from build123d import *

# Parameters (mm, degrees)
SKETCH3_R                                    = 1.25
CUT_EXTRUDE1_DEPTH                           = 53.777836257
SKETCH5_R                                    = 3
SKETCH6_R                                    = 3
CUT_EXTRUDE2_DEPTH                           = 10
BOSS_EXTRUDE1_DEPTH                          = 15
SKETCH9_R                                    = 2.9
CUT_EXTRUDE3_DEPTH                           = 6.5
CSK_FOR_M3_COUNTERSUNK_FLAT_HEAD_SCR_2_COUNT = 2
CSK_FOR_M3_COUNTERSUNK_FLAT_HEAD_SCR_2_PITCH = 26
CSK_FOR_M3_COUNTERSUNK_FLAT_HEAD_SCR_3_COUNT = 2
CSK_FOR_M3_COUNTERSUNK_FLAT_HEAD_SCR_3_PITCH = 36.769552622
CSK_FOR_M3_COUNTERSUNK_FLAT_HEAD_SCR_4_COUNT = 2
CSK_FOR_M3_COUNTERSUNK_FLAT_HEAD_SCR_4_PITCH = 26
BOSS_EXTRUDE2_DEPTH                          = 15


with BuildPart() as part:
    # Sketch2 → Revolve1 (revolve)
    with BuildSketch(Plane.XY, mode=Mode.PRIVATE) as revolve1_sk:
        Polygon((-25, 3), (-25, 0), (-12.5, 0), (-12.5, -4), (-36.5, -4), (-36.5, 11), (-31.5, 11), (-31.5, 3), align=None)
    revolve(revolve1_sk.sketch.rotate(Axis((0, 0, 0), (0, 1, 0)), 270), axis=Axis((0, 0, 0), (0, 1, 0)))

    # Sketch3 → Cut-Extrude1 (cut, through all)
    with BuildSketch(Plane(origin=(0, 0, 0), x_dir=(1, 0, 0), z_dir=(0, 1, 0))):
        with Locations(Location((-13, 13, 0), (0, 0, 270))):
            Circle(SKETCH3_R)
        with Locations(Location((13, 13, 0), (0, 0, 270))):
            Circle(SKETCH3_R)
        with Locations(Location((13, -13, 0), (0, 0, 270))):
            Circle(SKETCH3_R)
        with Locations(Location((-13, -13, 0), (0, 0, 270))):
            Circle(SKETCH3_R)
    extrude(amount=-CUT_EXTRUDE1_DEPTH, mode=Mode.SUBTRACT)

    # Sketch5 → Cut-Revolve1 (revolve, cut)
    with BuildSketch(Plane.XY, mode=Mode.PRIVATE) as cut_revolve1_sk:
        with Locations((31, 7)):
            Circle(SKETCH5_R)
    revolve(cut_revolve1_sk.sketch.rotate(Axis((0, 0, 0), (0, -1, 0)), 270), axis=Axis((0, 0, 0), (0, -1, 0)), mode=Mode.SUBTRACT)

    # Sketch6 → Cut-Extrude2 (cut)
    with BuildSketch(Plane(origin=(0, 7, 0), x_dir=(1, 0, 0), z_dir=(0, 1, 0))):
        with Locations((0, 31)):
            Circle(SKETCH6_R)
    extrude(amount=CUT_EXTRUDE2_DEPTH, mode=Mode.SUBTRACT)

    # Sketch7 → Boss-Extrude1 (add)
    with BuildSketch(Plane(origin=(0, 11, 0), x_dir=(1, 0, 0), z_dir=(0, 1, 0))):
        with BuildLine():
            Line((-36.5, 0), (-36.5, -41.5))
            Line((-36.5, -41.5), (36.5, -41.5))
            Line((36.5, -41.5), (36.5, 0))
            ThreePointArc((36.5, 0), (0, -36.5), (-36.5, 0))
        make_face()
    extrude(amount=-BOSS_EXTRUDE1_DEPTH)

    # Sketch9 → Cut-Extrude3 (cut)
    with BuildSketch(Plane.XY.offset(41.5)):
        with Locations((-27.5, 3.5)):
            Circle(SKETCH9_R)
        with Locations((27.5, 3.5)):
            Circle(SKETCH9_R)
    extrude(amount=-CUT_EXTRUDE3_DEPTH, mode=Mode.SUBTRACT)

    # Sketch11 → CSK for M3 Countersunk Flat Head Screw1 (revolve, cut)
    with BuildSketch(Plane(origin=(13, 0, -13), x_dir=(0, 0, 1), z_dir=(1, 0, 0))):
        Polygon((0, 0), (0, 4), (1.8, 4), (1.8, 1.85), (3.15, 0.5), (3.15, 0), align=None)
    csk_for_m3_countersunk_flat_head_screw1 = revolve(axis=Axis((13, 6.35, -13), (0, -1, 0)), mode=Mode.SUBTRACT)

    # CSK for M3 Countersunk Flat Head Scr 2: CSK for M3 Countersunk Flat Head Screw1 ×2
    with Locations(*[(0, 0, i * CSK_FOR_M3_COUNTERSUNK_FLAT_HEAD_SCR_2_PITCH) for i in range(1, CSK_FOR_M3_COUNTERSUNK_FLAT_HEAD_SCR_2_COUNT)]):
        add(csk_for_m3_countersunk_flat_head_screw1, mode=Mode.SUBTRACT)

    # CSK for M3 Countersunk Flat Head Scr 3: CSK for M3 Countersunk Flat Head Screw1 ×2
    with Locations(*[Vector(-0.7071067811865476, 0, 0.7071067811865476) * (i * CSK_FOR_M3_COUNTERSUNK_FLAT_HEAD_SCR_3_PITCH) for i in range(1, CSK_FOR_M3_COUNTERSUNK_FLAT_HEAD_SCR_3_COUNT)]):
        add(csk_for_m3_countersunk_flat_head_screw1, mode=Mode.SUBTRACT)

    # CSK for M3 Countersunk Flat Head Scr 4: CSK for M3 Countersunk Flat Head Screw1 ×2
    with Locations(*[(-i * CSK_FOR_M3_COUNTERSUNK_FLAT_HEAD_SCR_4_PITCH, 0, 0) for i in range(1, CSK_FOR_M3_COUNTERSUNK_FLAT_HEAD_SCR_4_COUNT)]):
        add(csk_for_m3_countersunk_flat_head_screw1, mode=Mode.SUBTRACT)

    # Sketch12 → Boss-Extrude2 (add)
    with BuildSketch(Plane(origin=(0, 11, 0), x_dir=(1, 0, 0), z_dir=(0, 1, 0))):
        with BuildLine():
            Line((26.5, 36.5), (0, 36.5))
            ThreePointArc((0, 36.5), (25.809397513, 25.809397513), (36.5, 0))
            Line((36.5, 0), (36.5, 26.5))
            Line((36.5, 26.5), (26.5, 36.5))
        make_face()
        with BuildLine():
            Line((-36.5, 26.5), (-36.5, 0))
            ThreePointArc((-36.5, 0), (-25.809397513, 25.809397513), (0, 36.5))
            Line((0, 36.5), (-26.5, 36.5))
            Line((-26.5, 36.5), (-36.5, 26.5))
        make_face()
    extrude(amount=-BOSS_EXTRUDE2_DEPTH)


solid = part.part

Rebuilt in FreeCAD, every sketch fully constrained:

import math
import FreeCAD as App
import Part
import Sketcher
Q = App.Units.Quantity


def add_polygon(sketch, points):
    """Adds a closed chain of lines whose ends are joined by coincident constraints."""
    first, n = sketch.GeometryCount, len(points)
    for a, b in zip(points, points[1:] + points[:1]):
        sketch.addGeometry(Part.LineSegment(App.Vector(*a, 0), App.Vector(*b, 0)), False)
    for i in range(n):
        sketch.addConstraint(Sketcher.Constraint("Coincident", first + i, 2, first + (i + 1) % n, 1))

doc = App.newDocument("Part")
body = doc.addObject("PartDesign::Body", "Body")

sketch1 = body.newObject("Sketcher::SketchObject", "Sketch")
sketch1.AttachmentSupport = (doc.getObject("XY_Plane"), [""])
sketch1.MapMode = "FlatFace"
add_polygon(sketch1, [(-25, 0), (-25, 3), (-31.5, 3), (-31.5, 11), (-36.5, 11), (-36.5, -4), (-12.5, -4), (-12.5, 0)])
sketch1.addConstraint([
    Sketcher.Constraint("Vertical", 0),
    Sketcher.Constraint("Horizontal", 1),
    Sketcher.Constraint("Vertical", 2),
    Sketcher.Constraint("Horizontal", 3),
    Sketcher.Constraint("Vertical", 4),
    Sketcher.Constraint("Horizontal", 5),
    Sketcher.Constraint("Vertical", 6),
    Sketcher.Constraint("Horizontal", 7),
    Sketcher.Constraint("PointOnObject", 6, 2, -1),
    Sketcher.Constraint("DistanceX", 3, 2, 3, 1, Q("5 mm")),
    Sketcher.Constraint("DistanceX", 5, 1, 5, 2, Q("24 mm")),
    Sketcher.Constraint("DistanceY", 0, 1, 0, 2, Q("3 mm")),
    Sketcher.Constraint("DistanceY", 2, 1, 2, 2, Q("8 mm")),
    Sketcher.Constraint("DistanceY", 4, 2, 4, 1, Q("15 mm")),
    Sketcher.Constraint("DistanceX", 1, 2, 1, 1, Q("6.5 mm")),
    Sketcher.Constraint("DistanceX", 0, 2, -1, 1, Q("25 mm")),
])
revolution = body.newObject("PartDesign::Revolution", "Revolution")
revolution.Profile = sketch1
revolution.ReferenceAxis = (sketch1, ["V_Axis"])
revolution.Angle = 360

sketch2 = body.newObject("Sketcher::SketchObject", "Sketch001")
sketch2.AttachmentSupport = (doc.getObject("XZ_Plane"), [""])
sketch2.MapMode = "FlatFace"
sketch2.addGeometry([
    Part.Circle(App.Vector(-13, -13, 0), App.Vector(0, 0, 1), 1.2),
    Part.Circle(App.Vector(13, -13, 0), App.Vector(0, 0, 1), 1.2),
    Part.Circle(App.Vector(13, 13, 0), App.Vector(0, 0, 1), 1.2),
    Part.Circle(App.Vector(-13, 13, 0), App.Vector(0, 0, 1), 1.2),
], False)
sketch2.addConstraint([
    Sketcher.Constraint("Equal", 0, 1),
    Sketcher.Constraint("Equal", 1, 2),
    Sketcher.Constraint("Equal", 2, 3),
    Sketcher.Constraint("Symmetric", 0, 3, 2, 3, -1, 1),
    Sketcher.Constraint("Symmetric", 1, 3, 3, 3, -1, 1),
    Sketcher.Constraint("Symmetric", 0, 3, 1, 3, -2),
    Sketcher.Constraint("Diameter", 0, Q("2.5 mm")),
    Sketcher.Constraint("DistanceX", 0, 3, -1, 1, Q("13 mm")),
    Sketcher.Constraint("DistanceY", 0, 3, -1, 1, Q("13 mm")),
])
pocket1 = body.newObject("PartDesign::Pocket", "Pocket")
pocket1.Profile = sketch2
pocket1.Type = "ThroughAll"
pocket1.Reversed = True

sketch3 = body.newObject("Sketcher::SketchObject", "Sketch002")
sketch3.AttachmentSupport = (doc.getObject("XY_Plane"), [""])
sketch3.MapMode = "FlatFace"
sketch3.addGeometry(Part.Circle(App.Vector(31, 7, 0), App.Vector(0, 0, 1), 3), False)
sketch3.addConstraint([
    Sketcher.Constraint("Diameter", 0, Q("6 mm")),
    Sketcher.Constraint("DistanceX", -1, 1, 0, 3, Q("31 mm")),
    Sketcher.Constraint("DistanceY", -1, 1, 0, 3, Q("7 mm")),
])
groove = body.newObject("PartDesign::Groove", "Groove")
groove.Profile = sketch3
groove.ReferenceAxis = (sketch3, ["V_Axis"])
groove.Angle = 360

sketch4 = body.newObject("Sketcher::SketchObject", "Sketch003")
sketch4.AttachmentSupport = (doc.getObject("XZ_Plane"), [""])
sketch4.MapMode = "FlatFace"
sketch4.AttachmentOffset = App.Placement(App.Vector(0, 0, -7), App.Rotation())
sketch4.addGeometry(Part.Circle(App.Vector(0, -31, 0), App.Vector(0, 0, 1), 3), False)
sketch4.addConstraint([
    Sketcher.Constraint("PointOnObject", 0, 3, -2),
    Sketcher.Constraint("Diameter", 0, Q("6 mm")),
    Sketcher.Constraint("DistanceY", 0, 3, -1, 1, Q("31 mm")),
])
pocket2 = body.newObject("PartDesign::Pocket", "Pocket001")
pocket2.Profile = sketch4
pocket2.Length = 10

sketch5 = body.newObject("Sketcher::SketchObject", "Sketch004")
sketch5.AttachmentSupport = (doc.getObject("XZ_Plane"), [""])
sketch5.MapMode = "FlatFace"
sketch5.AttachmentOffset = App.Placement(App.Vector(0, 0, -11), App.Rotation())
sketch5.addGeometry([
    Part.LineSegment(App.Vector(-36, 0, 0), App.Vector(-36, 42, 0)),
    Part.LineSegment(App.Vector(-36, 42, 0), App.Vector(36, 42, 0)),
    Part.LineSegment(App.Vector(36, 42, 0), App.Vector(36, 0, 0)),
    Part.ArcOfCircle(Part.Circle(App.Vector(0, 0, 0), App.Vector(0, 0, 1), 36), math.radians(0), math.radians(180)),
], False)
sketch5.addConstraint([
    Sketcher.Constraint("Coincident", 0, 2, 1, 1),
    Sketcher.Constraint("Coincident", 1, 2, 2, 1),
    Sketcher.Constraint("Tangent", 2, 2, 3, 1),
    Sketcher.Constraint("Tangent", 3, 2, 0, 1),
    Sketcher.Constraint("Vertical", 0),
    Sketcher.Constraint("Horizontal", 1),
    Sketcher.Constraint("Vertical", 2),
    Sketcher.Constraint("Coincident", 3, 3, -1, 1),
    Sketcher.Constraint("Radius", 3, Q("36.5 mm")),
    Sketcher.Constraint("DistanceY", 0, 1, 0, 2, Q("41.5 mm")),
])
pad1 = body.newObject("PartDesign::Pad", "Pad")
pad1.Profile = sketch5
pad1.Length = 15

sketch6 = body.newObject("Sketcher::SketchObject", "Sketch005")
sketch6.AttachmentSupport = (doc.getObject("XY_Plane"), [""])
sketch6.MapMode = "FlatFace"
sketch6.AttachmentOffset = App.Placement(App.Vector(0, 0, 41.5), App.Rotation())
sketch6.addGeometry([
    Part.Circle(App.Vector(-27.5, 3.5, 0), App.Vector(0, 0, 1), 2.9),
    Part.Circle(App.Vector(27.5, 3.5, 0), App.Vector(0, 0, 1), 2.9),
], False)
sketch6.addConstraint([
    Sketcher.Constraint("Equal", 0, 1),
    Sketcher.Constraint("Symmetric", 0, 3, 1, 3, -2),
    Sketcher.Constraint("Diameter", 0, Q("5.8 mm")),
    Sketcher.Constraint("DistanceX", 0, 3, 1, 3, Q("55 mm")),
    Sketcher.Constraint("DistanceY", -1, 1, 0, 3, Q("3.5 mm")),
])
pocket3 = body.newObject("PartDesign::Pocket", "Pocket002")
pocket3.Profile = sketch6
pocket3.Length = 6.5

sketch7 = body.newObject("Sketcher::SketchObject", "Sketch006")
sketch7.AttachmentSupport = (doc.getObject("YZ_Plane"), [""])
sketch7.MapMode = "FlatFace"
sketch7.AttachmentOffset = App.Placement(App.Vector(0, 0, 13), App.Rotation())
add_polygon(sketch7, [(-4, -13), (0, -13), (0, -9.8), (-0.5, -9.8), (-1.9, -11.2), (-4, -11.2)])
sketch7.addGeometry(Part.LineSegment(App.Vector(0, -13, 0), App.Vector(-4, -13, 0)), True)
sketch7.addConstraint([
    Sketcher.Constraint("Horizontal", 0),
    Sketcher.Constraint("Vertical", 1),
    Sketcher.Constraint("Horizontal", 2),
    Sketcher.Constraint("Horizontal", 4),
    Sketcher.Constraint("Vertical", 5),
    Sketcher.Constraint("Horizontal", 6),
    Sketcher.Constraint("Coincident", 6, 1, 0, 2),
    Sketcher.Constraint("PointOnObject", 0, 2, -2),
    Sketcher.Constraint("Vertical", 4, 2, 6, 2),
    Sketcher.Constraint("DistanceX", 0, 1, 0, 2, Q("4 mm")),
    Sketcher.Constraint("Angle", 3, Q("-135 deg")),
    Sketcher.Constraint("DistanceX", 2, 2, 2, 1, Q("0.5 mm")),
    Sketcher.Constraint("DistanceY", 5, 2, 5, 1, Q("1.8 mm")),
    Sketcher.Constraint("DistanceY", 0, 2, -1, 1, Q("13 mm")),
    Sketcher.Constraint("DistanceX", 4, 2, 4, 1, Q("2.15 mm")),
])
groove2 = body.newObject("PartDesign::Groove", "Groove001")
groove2.Profile = sketch7
groove2.ReferenceAxis = (sketch7, ["Axis0"])
groove2.Angle = 360
doc.recompute()

linearpattern = body.newObject("PartDesign::LinearPattern", "LinearPattern")
linearpattern.Originals = [groove2]
linearpattern.Direction = (doc.getObject("Z_Axis"), [""])
linearpattern.Mode = "offset"
linearpattern.Offset = 26
linearpattern.Occurrences = 2
body.Tip = linearpattern
doc.recompute()

datumline = body.newObject("PartDesign::Line", "DatumLine")
datumline.Placement = App.Placement(App.Vector(0, 0, 0), App.Rotation(App.Vector(0, 0, 1), App.Vector(-0.707106781, 0, 0.707106781)))
linearpattern2 = body.newObject("PartDesign::LinearPattern", "LinearPattern001")
linearpattern2.Originals = [groove2]
linearpattern2.Direction = (datumline, [""])
linearpattern2.Mode = "offset"
linearpattern2.Offset = 36.769553
linearpattern2.Occurrences = 2
body.Tip = linearpattern2
doc.recompute()

linearpattern3 = body.newObject("PartDesign::LinearPattern", "LinearPattern002")
linearpattern3.Originals = [groove2]
linearpattern3.Direction = (doc.getObject("X_Axis"), [""])
linearpattern3.Mode = "offset"
linearpattern3.Offset = 26
linearpattern3.Occurrences = 2
linearpattern3.Reversed = True
body.Tip = linearpattern3

sketch8 = body.newObject("Sketcher::SketchObject", "Sketch007")
sketch8.AttachmentSupport = (doc.getObject("XZ_Plane"), [""])
sketch8.MapMode = "FlatFace"
sketch8.AttachmentOffset = App.Placement(App.Vector(0, 0, -11), App.Rotation())
sketch8.addGeometry([
    Part.LineSegment(App.Vector(26, -36, 0), App.Vector(0, -36, 0)),
    Part.ArcOfCircle(Part.Circle(App.Vector(0, 0, 0), App.Vector(0, 0, 1), 37), math.radians(-90), math.radians(0)),
    Part.LineSegment(App.Vector(36, 0, 0), App.Vector(36, -26, 0)),
    Part.LineSegment(App.Vector(36, -26, 0), App.Vector(26, -36, 0)),
    Part.LineSegment(App.Vector(-36, -26, 0), App.Vector(-36, 0, 0)),
    Part.ArcOfCircle(Part.Circle(App.Vector(0, 0, 0), App.Vector(0, 0, 1), 37), math.radians(-180), math.radians(-90)),
    Part.LineSegment(App.Vector(0, -36, 0), App.Vector(-26, -36, 0)),
    Part.LineSegment(App.Vector(-26, -36, 0), App.Vector(-36, -26, 0)),
], False)
sketch8.addConstraint([
    Sketcher.Constraint("Tangent", 0, 2, 1, 1),
    Sketcher.Constraint("Tangent", 1, 2, 2, 1),
    Sketcher.Constraint("Coincident", 2, 2, 3, 1),
    Sketcher.Constraint("Coincident", 3, 2, 0, 1),
    Sketcher.Constraint("Tangent", 4, 2, 5, 1),
    Sketcher.Constraint("Tangent", 5, 2, 6, 1),
    Sketcher.Constraint("Coincident", 6, 2, 7, 1),
    Sketcher.Constraint("Coincident", 7, 2, 4, 1),
    Sketcher.Constraint("Horizontal", 0),
    Sketcher.Constraint("Vertical", 2),
    Sketcher.Constraint("Vertical", 4),
    Sketcher.Constraint("Horizontal", 6),
    Sketcher.Constraint("Coincident", 1, 3, -1, 1),
    Sketcher.Constraint("Coincident", 5, 3, -1, 1),
    Sketcher.Constraint("Equal", 1, 5),
    Sketcher.Constraint("Perpendicular", 3, 7),
    Sketcher.Constraint("Horizontal", 2, 2, 7, 2),
    Sketcher.Constraint("Equal", 0, 6),
    Sketcher.Constraint("Radius", 1, Q("36.5 mm")),
    Sketcher.Constraint("DistanceX", 0, 2, 0, 1, Q("26.5 mm")),
])
pad2 = body.newObject("PartDesign::Pad", "Pad001")
pad2.Profile = sketch8
pad2.Length = 15

doc.recompute()
